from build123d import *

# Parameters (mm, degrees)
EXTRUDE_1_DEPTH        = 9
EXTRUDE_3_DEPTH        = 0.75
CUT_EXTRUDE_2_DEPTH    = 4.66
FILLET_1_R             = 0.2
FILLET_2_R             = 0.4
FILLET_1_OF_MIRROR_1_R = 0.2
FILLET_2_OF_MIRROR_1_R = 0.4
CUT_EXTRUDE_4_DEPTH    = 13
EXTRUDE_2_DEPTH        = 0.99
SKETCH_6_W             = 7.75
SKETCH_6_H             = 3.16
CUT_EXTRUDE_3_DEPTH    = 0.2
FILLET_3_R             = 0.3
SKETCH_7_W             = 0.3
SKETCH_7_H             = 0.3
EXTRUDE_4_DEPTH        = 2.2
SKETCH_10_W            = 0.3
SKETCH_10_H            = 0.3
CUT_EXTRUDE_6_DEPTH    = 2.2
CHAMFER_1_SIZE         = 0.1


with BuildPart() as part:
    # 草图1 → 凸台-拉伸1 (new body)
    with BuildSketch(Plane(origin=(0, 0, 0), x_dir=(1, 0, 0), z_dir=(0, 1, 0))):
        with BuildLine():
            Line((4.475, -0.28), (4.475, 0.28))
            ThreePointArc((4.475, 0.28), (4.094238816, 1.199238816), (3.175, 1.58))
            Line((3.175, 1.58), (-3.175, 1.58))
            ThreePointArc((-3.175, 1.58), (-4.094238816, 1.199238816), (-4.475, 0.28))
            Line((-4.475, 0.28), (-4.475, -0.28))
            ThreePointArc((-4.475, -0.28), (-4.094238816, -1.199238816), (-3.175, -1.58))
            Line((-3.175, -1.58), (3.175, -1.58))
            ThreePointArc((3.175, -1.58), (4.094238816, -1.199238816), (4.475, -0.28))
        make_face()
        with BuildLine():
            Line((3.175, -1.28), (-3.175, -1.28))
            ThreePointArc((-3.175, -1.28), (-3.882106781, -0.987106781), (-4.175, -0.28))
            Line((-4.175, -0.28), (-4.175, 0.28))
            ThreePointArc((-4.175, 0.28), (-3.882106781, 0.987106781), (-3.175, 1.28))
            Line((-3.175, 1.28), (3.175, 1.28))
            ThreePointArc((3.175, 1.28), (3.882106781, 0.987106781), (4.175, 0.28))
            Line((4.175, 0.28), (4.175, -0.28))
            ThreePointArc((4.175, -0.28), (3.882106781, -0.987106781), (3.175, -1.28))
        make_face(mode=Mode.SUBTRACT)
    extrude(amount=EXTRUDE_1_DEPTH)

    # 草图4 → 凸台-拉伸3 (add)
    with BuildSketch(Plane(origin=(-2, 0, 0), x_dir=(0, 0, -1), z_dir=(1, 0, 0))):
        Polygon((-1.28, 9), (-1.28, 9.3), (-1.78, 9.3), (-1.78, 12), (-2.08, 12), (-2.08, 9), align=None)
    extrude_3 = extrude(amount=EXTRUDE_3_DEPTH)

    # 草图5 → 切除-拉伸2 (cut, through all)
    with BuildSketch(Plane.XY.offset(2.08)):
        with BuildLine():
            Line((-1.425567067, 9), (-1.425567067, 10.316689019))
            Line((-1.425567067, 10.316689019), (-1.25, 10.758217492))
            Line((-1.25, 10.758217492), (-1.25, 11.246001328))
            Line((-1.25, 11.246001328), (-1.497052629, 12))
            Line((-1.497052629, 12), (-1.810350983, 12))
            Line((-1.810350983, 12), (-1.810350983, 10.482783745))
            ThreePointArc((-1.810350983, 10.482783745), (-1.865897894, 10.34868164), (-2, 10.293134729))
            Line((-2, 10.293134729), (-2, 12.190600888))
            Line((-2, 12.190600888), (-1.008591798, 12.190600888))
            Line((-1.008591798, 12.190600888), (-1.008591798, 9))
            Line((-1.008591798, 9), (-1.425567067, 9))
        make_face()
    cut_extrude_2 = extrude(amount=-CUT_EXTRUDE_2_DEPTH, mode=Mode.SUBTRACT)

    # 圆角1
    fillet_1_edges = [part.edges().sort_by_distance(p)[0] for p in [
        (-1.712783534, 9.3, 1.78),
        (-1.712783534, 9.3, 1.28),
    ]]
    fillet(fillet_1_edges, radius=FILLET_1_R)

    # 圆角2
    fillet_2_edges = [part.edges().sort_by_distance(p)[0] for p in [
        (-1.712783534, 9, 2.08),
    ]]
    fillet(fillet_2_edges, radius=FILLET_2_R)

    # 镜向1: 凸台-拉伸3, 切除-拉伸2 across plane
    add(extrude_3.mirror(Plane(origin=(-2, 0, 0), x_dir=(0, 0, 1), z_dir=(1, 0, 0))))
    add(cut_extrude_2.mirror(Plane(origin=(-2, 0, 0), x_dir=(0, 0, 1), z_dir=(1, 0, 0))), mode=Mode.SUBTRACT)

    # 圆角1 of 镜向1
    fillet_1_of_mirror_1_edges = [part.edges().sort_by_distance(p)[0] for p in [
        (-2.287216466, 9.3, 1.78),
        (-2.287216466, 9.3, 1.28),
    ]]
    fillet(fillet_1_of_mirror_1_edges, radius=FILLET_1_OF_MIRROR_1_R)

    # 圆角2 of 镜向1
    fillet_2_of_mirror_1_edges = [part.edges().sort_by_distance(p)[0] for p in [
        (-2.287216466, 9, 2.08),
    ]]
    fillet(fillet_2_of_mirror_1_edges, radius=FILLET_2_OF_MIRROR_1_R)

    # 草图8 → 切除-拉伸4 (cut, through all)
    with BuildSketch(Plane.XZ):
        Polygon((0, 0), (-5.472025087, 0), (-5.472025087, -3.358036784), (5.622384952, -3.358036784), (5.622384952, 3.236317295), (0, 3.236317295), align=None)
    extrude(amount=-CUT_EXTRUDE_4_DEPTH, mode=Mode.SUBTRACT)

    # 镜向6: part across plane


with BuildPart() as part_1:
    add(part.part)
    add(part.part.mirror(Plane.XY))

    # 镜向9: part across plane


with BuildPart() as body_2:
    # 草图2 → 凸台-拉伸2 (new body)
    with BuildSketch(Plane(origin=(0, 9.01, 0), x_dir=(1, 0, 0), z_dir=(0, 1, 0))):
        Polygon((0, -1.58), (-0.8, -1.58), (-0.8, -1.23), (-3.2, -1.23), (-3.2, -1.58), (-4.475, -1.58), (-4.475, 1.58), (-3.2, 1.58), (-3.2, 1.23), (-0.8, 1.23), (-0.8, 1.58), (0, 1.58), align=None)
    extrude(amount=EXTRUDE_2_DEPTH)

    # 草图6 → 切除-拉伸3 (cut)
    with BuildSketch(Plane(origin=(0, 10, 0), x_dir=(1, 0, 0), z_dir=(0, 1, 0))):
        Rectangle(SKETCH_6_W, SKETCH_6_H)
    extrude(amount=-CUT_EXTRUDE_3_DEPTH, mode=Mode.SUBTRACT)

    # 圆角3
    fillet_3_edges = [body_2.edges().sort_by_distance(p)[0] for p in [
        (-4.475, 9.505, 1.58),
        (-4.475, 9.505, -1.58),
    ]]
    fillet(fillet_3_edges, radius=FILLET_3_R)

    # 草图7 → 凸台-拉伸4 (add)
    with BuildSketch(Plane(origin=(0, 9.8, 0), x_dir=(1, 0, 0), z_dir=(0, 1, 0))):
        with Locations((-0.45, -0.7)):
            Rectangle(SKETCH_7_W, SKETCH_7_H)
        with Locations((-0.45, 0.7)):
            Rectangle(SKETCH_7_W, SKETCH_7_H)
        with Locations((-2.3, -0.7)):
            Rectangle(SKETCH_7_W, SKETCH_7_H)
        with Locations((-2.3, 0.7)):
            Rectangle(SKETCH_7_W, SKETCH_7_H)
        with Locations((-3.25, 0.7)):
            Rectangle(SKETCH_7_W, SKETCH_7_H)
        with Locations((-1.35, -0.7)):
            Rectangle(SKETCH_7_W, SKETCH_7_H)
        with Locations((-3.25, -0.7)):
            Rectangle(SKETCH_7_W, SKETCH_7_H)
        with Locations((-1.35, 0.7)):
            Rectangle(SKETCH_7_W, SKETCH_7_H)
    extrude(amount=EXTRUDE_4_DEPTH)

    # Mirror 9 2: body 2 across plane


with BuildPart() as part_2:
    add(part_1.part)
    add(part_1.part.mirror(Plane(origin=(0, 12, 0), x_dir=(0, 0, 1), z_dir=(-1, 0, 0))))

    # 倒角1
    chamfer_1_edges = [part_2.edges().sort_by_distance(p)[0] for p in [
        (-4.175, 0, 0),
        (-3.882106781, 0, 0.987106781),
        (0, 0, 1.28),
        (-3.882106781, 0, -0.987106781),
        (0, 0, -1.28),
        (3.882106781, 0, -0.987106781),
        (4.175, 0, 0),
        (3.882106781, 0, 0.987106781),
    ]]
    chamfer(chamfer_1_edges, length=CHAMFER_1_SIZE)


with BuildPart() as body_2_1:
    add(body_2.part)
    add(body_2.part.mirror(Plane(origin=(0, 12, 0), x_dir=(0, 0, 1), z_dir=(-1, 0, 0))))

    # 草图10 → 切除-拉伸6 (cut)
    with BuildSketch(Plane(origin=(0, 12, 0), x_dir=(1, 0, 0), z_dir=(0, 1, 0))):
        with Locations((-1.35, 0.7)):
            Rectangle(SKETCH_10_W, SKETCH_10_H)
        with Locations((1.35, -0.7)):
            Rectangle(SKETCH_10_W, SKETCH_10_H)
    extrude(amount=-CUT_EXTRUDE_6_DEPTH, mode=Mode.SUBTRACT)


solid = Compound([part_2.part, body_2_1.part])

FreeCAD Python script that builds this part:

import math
import FreeCAD as App
import Part
import Sketcher


def edges_at(feature, points):
    """Names of the edges that pass closest to the given points."""
    edges = feature.Shape.Edges
    near = lambda p: min(range(len(edges)), key=lambda i: edges[i].distToShape(Part.Vertex(*p))[0])
    return sorted({f"Edge{near(p) + 1}" for p in points})

doc = App.newDocument("Part")
body = doc.addObject("PartDesign::Body", "Body")

sketch1 = body.newObject("Sketcher::SketchObject", "Sketch")
sketch1.AttachmentSupport = (doc.getObject("XZ_Plane"), [""])
sketch1.MapMode = "FlatFace"
sketch1.addGeometry(Part.LineSegment(App.Vector(4.475, 0.28, 0), App.Vector(4.475, -0.28, 0)), False)
sketch1.addGeometry(Part.ArcOfCircle(Part.Circle(App.Vector(3.175, -0.28, 0), App.Vector(0, 0, 1), 1.3), math.radians(-90), math.radians(0)), False)
sketch1.addGeometry(Part.LineSegment(App.Vector(3.175, -1.58, 0), App.Vector(-3.175, -1.58, 0)), False)
sketch1.addGeometry(Part.ArcOfCircle(Part.Circle(App.Vector(-3.175, -0.28, 0), App.Vector(0, 0, 1), 1.3), math.radians(180), math.radians(270)), False)
sketch1.addGeometry(Part.LineSegment(App.Vector(-4.475, -0.28, 0), App.Vector(-4.475, 0.28, 0)), False)
sketch1.addGeometry(Part.ArcOfCircle(Part.Circle(App.Vector(-3.175, 0.28, 0), App.Vector(0, 0, 1), 1.3), math.radians(90), math.radians(180)), False)
sketch1.addGeometry(Part.LineSegment(App.Vector(-3.175, 1.58, 0), App.Vector(3.175, 1.58, 0)), False)
sketch1.addGeometry(Part.ArcOfCircle(Part.Circle(App.Vector(3.175, 0.28, 0), App.Vector(0, 0, 1), 1.3), math.radians(0), math.radians(90)), False)
sketch1.addGeometry(Part.ArcOfCircle(Part.Circle(App.Vector(3.175, 0.28, 0), App.Vector(0, 0, 1), 1), math.radians(0), math.radians(90)), False)
sketch1.addGeometry(Part.LineSegment(App.Vector(3.175, 1.28, 0), App.Vector(-3.175, 1.28, 0)), False)
sketch1.addGeometry(Part.ArcOfCircle(Part.Circle(App.Vector(-3.175, 0.28, 0), App.Vector(0, 0, 1), 1), math.radians(90), math.radians(180)), False)
sketch1.addGeometry(Part.LineSegment(App.Vector(-4.175, 0.28, 0), App.Vector(-4.175, -0.28, 0)), False)
sketch1.addGeometry(Part.ArcOfCircle(Part.Circle(App.Vector(-3.175, -0.28, 0), App.Vector(0, 0, 1), 1), math.radians(-180), math.radians(-90)), False)
sketch1.addGeometry(Part.LineSegment(App.Vector(-3.175, -1.28, 0), App.Vector(3.175, -1.28, 0)), False)
sketch1.addGeometry(Part.ArcOfCircle(Part.Circle(App.Vector(3.175, -0.28, 0), App.Vector(0, 0, 1), 1), math.radians(-90), math.radians(0)), False)
sketch1.addGeometry(Part.LineSegment(App.Vector(4.175, -0.28, 0), App.Vector(4.175, 0.28, 0)), False)
sketch1.addConstraint(Sketcher.Constraint("Tangent", 0, 2, 1, 2))
sketch1.addConstraint(Sketcher.Constraint("Tangent", 1, 1, 2, 1))
sketch1.addConstraint(Sketcher.Constraint("Tangent", 2, 2, 3, 2))
sketch1.addConstraint(Sketcher.Constraint("Tangent", 3, 1, 4, 1))
sketch1.addConstraint(Sketcher.Constraint("Tangent", 4, 2, 5, 2))
sketch1.addConstraint(Sketcher.Constraint("Tangent", 5, 1, 6, 1))
sketch1.addConstraint(Sketcher.Constraint("Tangent", 6, 2, 7, 2))
sketch1.addConstraint(Sketcher.Constraint("Tangent", 7, 1, 0, 1))
sketch1.addConstraint(Sketcher.Constraint("Tangent", 8, 2, 9, 1))
sketch1.addConstraint(Sketcher.Constraint("Tangent", 9, 2, 10, 1))
sketch1.addConstraint(Sketcher.Constraint("Tangent", 10, 2, 11, 1))
sketch1.addConstraint(Sketcher.Constraint("Tangent", 11, 2, 12, 1))
sketch1.addConstraint(Sketcher.Constraint("Tangent", 12, 2, 13, 1))
sketch1.addConstraint(Sketcher.Constraint("Tangent", 13, 2, 14, 1))
sketch1.addConstraint(Sketcher.Constraint("Tangent", 14, 2, 15, 1))
sketch1.addConstraint(Sketcher.Constraint("Tangent", 15, 2, 8, 1))
sketch1.addConstraint(Sketcher.Constraint("Vertical", 0))
sketch1.addConstraint(Sketcher.Constraint("Horizontal", 2))
sketch1.addConstraint(Sketcher.Constraint("Vertical", 4))
sketch1.addConstraint(Sketcher.Constraint("Horizontal", 6))
sketch1.addConstraint(Sketcher.Constraint("Horizontal", 9))
sketch1.addConstraint(Sketcher.Constraint("Vertical", 11))
sketch1.addConstraint(Sketcher.Constraint("Horizontal", 13))
sketch1.addConstraint(Sketcher.Constraint("Vertical", 15))
sketch1.addConstraint(Sketcher.Constraint("Coincident", 8, 3, 7, 3))
sketch1.addConstraint(Sketcher.Constraint("Coincident", 10, 3, 5, 3))
sketch1.addConstraint(Sketcher.Constraint("Coincident", 12, 3, 3, 3))
sketch1.addConstraint(Sketcher.Constraint("Equal", 1, 3))
sketch1.addConstraint(Sketcher.Constraint("Equal", 3, 5))
sketch1.addConstraint(Sketcher.Constraint("Equal", 5, 7))
sketch1.addConstraint(Sketcher.Constraint("Equal", 12, 14))
sketch1.addConstraint(Sketcher.Constraint("Symmetric", 1, 3, 5, 3, -1, 1))
sketch1.addConstraint(Sketcher.Constraint("Radius", 8, 1.0))
sketch1.addConstraint(Sketcher.Constraint("Radius", 1, 1.3))
sketch1.addConstraint(Sketcher.Constraint("DistanceX", 2, 2, 2, 1, 6.35))
sketch1.addConstraint(Sketcher.Constraint("DistanceY", 0, 2, 0, 1, 0.56))
pad1 = body.newObject("PartDesign::Pad", "Pad")
pad1.Profile = sketch1
pad1.Length = 9
pad1.Reversed = True

sketch2 = body.newObject("Sketcher::SketchObject", "Sketch001")
sketch2.AttachmentSupport = (doc.getObject("YZ_Plane"), [""])
sketch2.MapMode = "FlatFace"
sketch2.AttachmentOffset = App.Placement(App.Vector(0, 0, -2), App.Rotation())
sketch2.addGeometry(Part.LineSegment(App.Vector(9, 1.28, 0), App.Vector(9.3, 1.28, 0)), False)
sketch2.addGeometry(Part.LineSegment(App.Vector(9.3, 1.28, 0), App.Vector(9.3, 1.78, 0)), False)
sketch2.addGeometry(Part.LineSegment(App.Vector(9.3, 1.78, 0), App.Vector(12, 1.78, 0)), False)
sketch2.addGeometry(Part.LineSegment(App.Vector(12, 1.78, 0), App.Vector(12, 2.08, 0)), False)
sketch2.addGeometry(Part.LineSegment(App.Vector(12, 2.08, 0), App.Vector(9, 2.08, 0)), False)
sketch2.addGeometry(Part.LineSegment(App.Vector(9, 2.08, 0), App.Vector(9, 1.28, 0)), False)
sketch2.addConstraint(Sketcher.Constraint("Coincident", 0, 2, 1, 1))
sketch2.addConstraint(Sketcher.Constraint("Coincident", 1, 2, 2, 1))
sketch2.addConstraint(Sketcher.Constraint("Coincident", 2, 2, 3, 1))
sketch2.addConstraint(Sketcher.Constraint("Coincident", 3, 2, 4, 1))
sketch2.addConstraint(Sketcher.Constraint("Coincident", 4, 2, 5, 1))
sketch2.addConstraint(Sketcher.Constraint("Coincident", 5, 2, 0, 1))
sketch2.addConstraint(Sketcher.Constraint("Horizontal", 0))
sketch2.addConstraint(Sketcher.Constraint("Vertical", 1))
sketch2.addConstraint(Sketcher.Constraint("Horizontal", 2))
sketch2.addConstraint(Sketcher.Constraint("Vertical", 3))
sketch2.addConstraint(Sketcher.Constraint("Horizontal", 4))
sketch2.addConstraint(Sketcher.Constraint("Vertical", 5))
sketch2.addConstraint(Sketcher.Constraint("Equal", 0, 3))
sketch2.addConstraint(Sketcher.Constraint("DistanceX", 4, 2, 4, 1, 3.0))
sketch2.addConstraint(Sketcher.Constraint("DistanceX", 0, 1, 0, 2, 0.3))
sketch2.addConstraint(Sketcher.Constraint("DistanceY", 1, 1, 1, 2, 0.5))
sketch2.addConstraint(Sketcher.Constraint("DistanceX", -1, 1, 2, 2, 12.0))
sketch2.addConstraint(Sketcher.Constraint("DistanceY", -1, 1, 0, 2, 1.28))
pad2 = body.newObject("PartDesign::Pad", "Pad001")
pad2.Profile = sketch2
pad2.Length = 0.75

sketch3 = body.newObject("Sketcher::SketchObject", "Sketch002")
sketch3.AttachmentSupport = (doc.getObject("XY_Plane"), [""])
sketch3.MapMode = "FlatFace"
sketch3.AttachmentOffset = App.Placement(App.Vector(0, 0, 2.08), App.Rotation())
sketch3.addGeometry(Part.LineSegment(App.Vector(-1.425567, 10.316689, 0), App.Vector(-1.425567, 9, 0)), False)
sketch3.addGeometry(Part.LineSegment(App.Vector(-1.425567, 9, 0), App.Vector(-1.008592, 9, 0)), False)
sketch3.addGeometry(Part.LineSegment(App.Vector(-1.008592, 9, 0), App.Vector(-1.008592, 12.190601, 0)), False)
sketch3.addGeometry(Part.LineSegment(App.Vector(-1.008592, 12.190601, 0), App.Vector(-2, 12.190601, 0)), False)
sketch3.addGeometry(Part.LineSegment(App.Vector(-2, 12.190601, 0), App.Vector(-2, 10.293135, 0)), False)
sketch3.addGeometry(Part.ArcOfCircle(Part.Circle(App.Vector(-2, 10.482784, 0), App.Vector(0, 0, 1), 0.189649), math.radians(-90), math.radians(0)), False)
sketch3.addGeometry(Part.LineSegment(App.Vector(-1.810351, 10.482784, 0), App.Vector(-1.810351, 12, 0)), False)
sketch3.addGeometry(Part.LineSegment(App.Vector(-1.810351, 12, 0), App.Vector(-1.497053, 12, 0)), False)
sketch3.addGeometry(Part.LineSegment(App.Vector(-1.497053, 12, 0), App.Vector(-1.25, 11.246001, 0)), False)
sketch3.addGeometry(Part.LineSegment(App.Vector(-1.25, 11.246001, 0), App.Vector(-1.25, 10.758217, 0)), False)
sketch3.addGeometry(Part.LineSegment(App.Vector(-1.25, 10.758217, 0), App.Vector(-1.425567, 10.316689, 0)), False)
sketch3.addConstraint(Sketcher.Constraint("Coincident", 0, 2, 1, 1))
sketch3.addConstraint(Sketcher.Constraint("Coincident", 1, 2, 2, 1))
sketch3.addConstraint(Sketcher.Constraint("Coincident", 2, 2, 3, 1))
sketch3.addConstraint(Sketcher.Constraint("Coincident", 3, 2, 4, 1))
sketch3.addConstraint(Sketcher.Constraint("Coincident", 4, 2, 5, 1))
sketch3.addConstraint(Sketcher.Constraint("Tangent", 5, 2, 6, 1))
sketch3.addConstraint(Sketcher.Constraint("Coincident", 6, 2, 7, 1))
sketch3.addConstraint(Sketcher.Constraint("Coincident", 7, 2, 8, 1))
sketch3.addConstraint(Sketcher.Constraint("Coincident", 8, 2, 9, 1))
sketch3.addConstraint(Sketcher.Constraint("Coincident", 9, 2, 10, 1))
sketch3.addConstraint(Sketcher.Constraint("Coincident", 10, 2, 0, 1))
sketch3.addConstraint(Sketcher.Constraint("Vertical", 0))
sketch3.addConstraint(Sketcher.Constraint("Horizontal", 1))
sketch3.addConstraint(Sketcher.Constraint("Vertical", 2))
sketch3.addConstraint(Sketcher.Constraint("Horizontal", 3))
sketch3.addConstraint(Sketcher.Constraint("Vertical", 4))
sketch3.addConstraint(Sketcher.Constraint("Vertical", 6))
sketch3.addConstraint(Sketcher.Constraint("Horizontal", 7))
sketch3.addConstraint(Sketcher.Constraint("Vertical", 9))
sketch3.addConstraint(Sketcher.Constraint("Vertical", 5, 3, 3, 2))
sketch3.addConstraint(Sketcher.Constraint("DistanceX", 5, 3, -1, 1, 2.0))
sketch3.addConstraint(Sketcher.Constraint("DistanceY", -1, 1, 0, 2, 9.0))
sketch3.addConstraint(Sketcher.Constraint("DistanceY", -1, 1, 6, 2, 12.0))
sketch3.addConstraint(Sketcher.Constraint("DistanceX", 8, 2, -1, 1, 1.25))
sketch3.addConstraint(Sketcher.Constraint("Radius", 5, 0.189649))
sketch3.addConstraint(Sketcher.Constraint("DistanceX", 7, 1, 7, 2, 0.313298))
sketch3.addConstraint(Sketcher.Constraint("DistanceY", 2, 1, 2, 2, 3.190601))
sketch3.addConstraint(Sketcher.Constraint("DistanceY", -1, 1, 8, 2, 11.246001))
sketch3.addConstraint(Sketcher.Constraint("DistanceX", 3, 2, 3, 1, 0.991408))
sketch3.addConstraint(Sketcher.Constraint("DistanceY", 0, 2, 0, 1, 1.316689))
sketch3.addConstraint(Sketcher.Constraint("DistanceX", 1, 1, 1, 2, 0.416975))
sketch3.addConstraint(Sketcher.Constraint("DistanceY", 4, 2, 4, 1, 1.897466))
sketch3.addConstraint(Sketcher.Constraint("DistanceY", 9, 2, 9, 1, 0.487784))
pocket1 = body.newObject("PartDesign::Pocket", "Pocket")
pocket1.Profile = sketch3
pocket1.Type = "ThroughAll"
doc.recompute()

fillet = body.newObject("PartDesign::Fillet", "Fillet")
fillet.Base = (pocket1, edges_at(pocket1, [(-1.713, 9.3, 1.78), (-1.713, 9.3, 1.28)]))
fillet.Radius = 0.2
doc.recompute()

fillet2 = body.newObject("PartDesign::Fillet", "Fillet001")
fillet2.Base = (fillet, edges_at(fillet, [(-1.713, 9, 2.08)]))
fillet2.Radius = 0.4
doc.recompute()

datumplane = body.newObject("PartDesign::Plane", "DatumPlane")
datumplane.AttachmentSupport = (doc.getObject("YZ_Plane"), [""])
datumplane.MapMode = "FlatFace"
datumplane.AttachmentOffset = App.Placement(App.Vector(0, 0, -2), App.Rotation())
mirrored = body.newObject("PartDesign::Mirrored", "Mirrored")
mirrored.Originals = [pad2, pocket1]
mirrored.MirrorPlane = (datumplane, [""])
body.Tip = mirrored
doc.recompute()

fillet3 = body.newObject("PartDesign::Fillet", "Fillet002")
fillet3.Base = (mirrored, edges_at(mirrored, [(-2.287, 9.3, 1.78), (-2.287, 9.3, 1.28)]))
fillet3.Radius = 0.2
doc.recompute()

fillet4 = body.newObject("PartDesign::Fillet", "Fillet003")
fillet4.Base = (fillet3, edges_at(fillet3, [(-2.287, 9, 2.08)]))
fillet4.Radius = 0.4

sketch4 = body.newObject("Sketcher::SketchObject", "Sketch003")
sketch4.AttachmentSupport = (doc.getObject("XZ_Plane"), [""])
sketch4.MapMode = "FlatFace"
sketch4.addGeometry(Part.LineSegment(App.Vector(0, 0, 0), App.Vector(-5.472025, 0, 0)), False)
sketch4.addGeometry(Part.LineSegment(App.Vector(-5.472025, 0, 0), App.Vector(-5.472025, -3.358037, 0)), False)
sketch4.addGeometry(Part.LineSegment(App.Vector(-5.472025, -3.358037, 0), App.Vector(5.622385, -3.358037, 0)), False)
sketch4.addGeometry(Part.LineSegment(App.Vector(5.622385, -3.358037, 0), App.Vector(5.622385, 3.236317, 0)), False)
sketch4.addGeometry(Part.LineSegment(App.Vector(5.622385, 3.236317, 0), App.Vector(0, 3.236317, 0)), False)
sketch4.addGeometry(Part.LineSegment(App.Vector(0, 3.236317, 0), App.Vector(0, 0, 0)), False)
sketch4.addConstraint(Sketcher.Constraint("Coincident", 0, 2, 1, 1))
sketch4.addConstraint(Sketcher.Constraint("Coincident", 1, 2, 2, 1))
sketch4.addConstraint(Sketcher.Constraint("Coincident", 2, 2, 3, 1))
sketch4.addConstraint(Sketcher.Constraint("Coincident", 3, 2, 4, 1))
sketch4.addConstraint(Sketcher.Constraint("Coincident", 4, 2, 5, 1))
sketch4.addConstraint(Sketcher.Constraint("Coincident", 5, 2, 0, 1))
sketch4.addConstraint(Sketcher.Constraint("Horizontal", 0))
sketch4.addConstraint(Sketcher.Constraint("Vertical", 1))
sketch4.addConstraint(Sketcher.Constraint("Horizontal", 2))
sketch4.addConstraint(Sketcher.Constraint("Vertical", 3))
sketch4.addConstraint(Sketcher.Constraint("Horizontal", 4))
sketch4.addConstraint(Sketcher.Constraint("Vertical", 5))
sketch4.addConstraint(Sketcher.Constraint("Coincident", 5, 2, -1, 1))
sketch4.addConstraint(Sketcher.Constraint("DistanceX", 2, 1, 2, 2, 11.09441))
sketch4.addConstraint(Sketcher.Constraint("DistanceX", 0, 2, 0, 1, 5.472025))
sketch4.addConstraint(Sketcher.Constraint("DistanceY", 1, 2, 1, 1, 3.358037))
sketch4.addConstraint(Sketcher.Constraint("DistanceY", 3, 1, 3, 2, 6.594354))
pocket2 = body.newObject("PartDesign::Pocket", "Pocket001")
pocket2.Profile = sketch4
pocket2.Type = "ThroughAll"
body2 = doc.addObject("PartDesign::Body", "Body001")
doc.recompute()

body2.BaseFeature = body
doc.recompute()

mirroring = doc.addObject("Part::Mirroring", "Mirroring")
mirroring.Source = body
mirroring.Base = App.Vector(0, 0, 0)
mirroring.Normal = App.Vector(0, 0, 1)
body3 = doc.addObject("PartDesign::Body", "Body002")
body3.BaseFeature = mirroring
boolean = body2.newObject("PartDesign::Boolean", "Boolean")
boolean.Type = "Fuse"
boolean.addObjects([body3])
doc.recompute()
body4 = doc.addObject("PartDesign::Body", "Body003")

sketch5 = body4.newObject("Sketcher::SketchObject", "Sketch004")
sketch5.AttachmentSupport = (doc.getObject("XZ_Plane003"), [""])
sketch5.MapMode = "FlatFace"
sketch5.AttachmentOffset = App.Placement(App.Vector(0, 0, -9.01), App.Rotation())
sketch5.addGeometry(Part.LineSegment(App.Vector(-0.8, 1.58, 0), App.Vector(0, 1.58, 0)), False)
sketch5.addGeometry(Part.LineSegment(App.Vector(0, 1.58, 0), App.Vector(0, -1.58, 0)), False)
sketch5.addGeometry(Part.LineSegment(App.Vector(0, -1.58, 0), App.Vector(-0.8, -1.58, 0)), False)
sketch5.addGeometry(Part.LineSegment(App.Vector(-0.8, -1.58, 0), App.Vector(-0.8, -1.23, 0)), False)
sketch5.addGeometry(Part.LineSegment(App.Vector(-0.8, -1.23, 0), App.Vector(-3.2, -1.23, 0)), False)
sketch5.addGeometry(Part.LineSegment(App.Vector(-3.2, -1.23, 0), App.Vector(-3.2, -1.58, 0)), False)
sketch5.addGeometry(Part.LineSegment(App.Vector(-3.2, -1.58, 0), App.Vector(-4.475, -1.58, 0)), False)
sketch5.addGeometry(Part.LineSegment(App.Vector(-4.475, -1.58, 0), App.Vector(-4.475, 1.58, 0)), False)
sketch5.addGeometry(Part.LineSegment(App.Vector(-4.475, 1.58, 0), App.Vector(-3.2, 1.58, 0)), False)
sketch5.addGeometry(Part.LineSegment(App.Vector(-3.2, 1.58, 0), App.Vector(-3.2, 1.23, 0)), False)
sketch5.addGeometry(Part.LineSegment(App.Vector(-3.2, 1.23, 0), App.Vector(-0.8, 1.23, 0)), False)
sketch5.addGeometry(Part.LineSegment(App.Vector(-0.8, 1.23, 0), App.Vector(-0.8, 1.58, 0)), False)
sketch5.addConstraint(Sketcher.Constraint("Coincident", 0, 2, 1, 1))
sketch5.addConstraint(Sketcher.Constraint("Coincident", 1, 2, 2, 1))
sketch5.addConstraint(Sketcher.Constraint("Coincident", 2, 2, 3, 1))
sketch5.addConstraint(Sketcher.Constraint("Coincident", 3, 2, 4, 1))
sketch5.addConstraint(Sketcher.Constraint("Coincident", 4, 2, 5, 1))
sketch5.addConstraint(Sketcher.Constraint("Coincident", 5, 2, 6, 1))
sketch5.addConstraint(Sketcher.Constraint("Coincident", 6, 2, 7, 1))
sketch5.addConstraint(Sketcher.Constraint("Coincident", 7, 2, 8, 1))
sketch5.addConstraint(Sketcher.Constraint("Coincident", 8, 2, 9, 1))
sketch5.addConstraint(Sketcher.Constraint("Coincident", 9, 2, 10, 1))
sketch5.addConstraint(Sketcher.Constraint("Coincident", 10, 2, 11, 1))
sketch5.addConstraint(Sketcher.Constraint("Coincident", 11, 2, 0, 1))
sketch5.addConstraint(Sketcher.Constraint("Horizontal", 0))
sketch5.addConstraint(Sketcher.Constraint("Vertical", 1))
sketch5.addConstraint(Sketcher.Constraint("Horizontal", 2))
sketch5.addConstraint(Sketcher.Constraint("Vertical", 3))
sketch5.addConstraint(Sketcher.Constraint("Horizontal", 4))
sketch5.addConstraint(Sketcher.Constraint("Vertical", 5))
sketch5.addConstraint(Sketcher.Constraint("Horizontal", 6))
sketch5.addConstraint(Sketcher.Constraint("Vertical", 7))
sketch5.addConstraint(Sketcher.Constraint("Horizontal", 8))
sketch5.addConstraint(Sketcher.Constraint("Vertical", 9))
sketch5.addConstraint(Sketcher.Constraint("Horizontal", 10))
sketch5.addConstraint(Sketcher.Constraint("Vertical", 11))
sketch5.addConstraint(Sketcher.Constraint("Symmetric", 0, 2, 1, 2, -1, 1))
sketch5.addConstraint(Sketcher.Constraint("Symmetric", 5, 2, 8, 2, -1))
sketch5.addConstraint(Sketcher.Constraint("Symmetric", 3, 2, 10, 2, -1))
sketch5.addConstraint(Sketcher.Constraint("Horizontal", 2, 2, 5, 2))
sketch5.addConstraint(Sketcher.Constraint("DistanceX", 0, 1, 0, 2, 0.8))
sketch5.addConstraint(Sketcher.Constraint("DistanceX", 4, 2, 4, 1, 2.4))
sketch5.addConstraint(Sketcher.Constraint("DistanceY", 1, 2, 1, 1, 3.16))
sketch5.addConstraint(Sketcher.Constraint("DistanceY", 3, 1, 3, 2, 0.35))
sketch5.addConstraint(Sketcher.Constraint("DistanceX", 6, 2, 6, 1, 1.275))
pad3 = body4.newObject("PartDesign::Pad", "Pad002")
pad3.Profile = sketch5
pad3.Length = 0.99
pad3.Reversed = True

sketch6 = body4.newObject("Sketcher::SketchObject", "Sketch005")
sketch6.AttachmentSupport = (doc.getObject("XZ_Plane003"), [""])
sketch6.MapMode = "FlatFace"
sketch6.AttachmentOffset = App.Placement(App.Vector(0, 0, -10), App.Rotation())
sketch6.addGeometry(Part.LineSegment(App.Vector(-3.875, -1.58, 0), App.Vector(-3.875, 1.58, 0)), False)
sketch6.addGeometry(Part.LineSegment(App.Vector(-3.875, 1.58, 0), App.Vector(3.875, 1.58, 0)), False)
sketch6.addGeometry(Part.LineSegment(App.Vector(3.875, 1.58, 0), App.Vector(3.875, -1.58, 0)), False)
sketch6.addGeometry(Part.LineSegment(App.Vector(3.875, -1.58, 0), App.Vector(-3.875, -1.58, 0)), False)
sketch6.addConstraint(Sketcher.Constraint("Coincident", 0, 2, 1, 1))
sketch6.addConstraint(Sketcher.Constraint("Coincident", 1, 2, 2, 1))
sketch6.addConstraint(Sketcher.Constraint("Coincident", 2, 2, 3, 1))
sketch6.addConstraint(Sketcher.Constraint("Coincident", 3, 2, 0, 1))
sketch6.addConstraint(Sketcher.Constraint("Vertical", 0))
sketch6.addConstraint(Sketcher.Constraint("Horizontal", 1))
sketch6.addConstraint(Sketcher.Constraint("Vertical", 2))
sketch6.addConstraint(Sketcher.Constraint("Horizontal", 3))
sketch6.addConstraint(Sketcher.Constraint("Symmetric", 0, 2, 2, 2, -1, 1))
sketch6.addConstraint(Sketcher.Constraint("DistanceX", 1, 1, 1, 2, 7.75))
sketch6.addConstraint(Sketcher.Constraint("DistanceY", 0, 1, 0, 2, 3.16))
pocket3 = body4.newObject("PartDesign::Pocket", "Pocket002")
pocket3.Profile = sketch6
pocket3.Length = 0.2
pocket3.Reversed = True
doc.recompute()

fillet5 = body4.newObject("PartDesign::Fillet", "Fillet004")
fillet5.Base = (pocket3, edges_at(pocket3, [(-4.475, 9.505, 1.58), (-4.475, 9.505, -1.58)]))
fillet5.Radius = 0.3

sketch7 = body4.newObject("Sketcher::SketchObject", "Sketch006")
sketch7.AttachmentSupport = (doc.getObject("XZ_Plane003"), [""])
sketch7.MapMode = "FlatFace"
sketch7.AttachmentOffset = App.Placement(App.Vector(0, 0, -9.8), App.Rotation())
sketch7.addGeometry(Part.LineSegment(App.Vector(-0.6, 0.55, 0), App.Vector(-0.6, 0.85, 0)), False)
sketch7.addGeometry(Part.LineSegment(App.Vector(-0.6, 0.85, 0), App.Vector(-0.3, 0.85, 0)), False)
sketch7.addGeometry(Part.LineSegment(App.Vector(-0.3, 0.85, 0), App.Vector(-0.3, 0.55, 0)), False)
sketch7.addGeometry(Part.LineSegment(App.Vector(-0.3, 0.55, 0), App.Vector(-0.6, 0.55, 0)), False)
sketch7.addGeometry(Part.LineSegment(App.Vector(-0.6, -0.85, 0), App.Vector(-0.6, -0.55, 0)), False)
sketch7.addGeometry(Part.LineSegment(App.Vector(-0.6, -0.55, 0), App.Vector(-0.3, -0.55, 0)), False)
sketch7.addGeometry(Part.LineSegment(App.Vector(-0.3, -0.55, 0), App.Vector(-0.3, -0.85, 0)), False)
sketch7.addGeometry(Part.LineSegment(App.Vector(-0.3, -0.85, 0), App.Vector(-0.6, -0.85, 0)), False)
sketch7.addGeometry(Part.LineSegment(App.Vector(-2.45, 0.55, 0), App.Vector(-2.45, 0.85, 0)), False)
sketch7.addGeometry(Part.LineSegment(App.Vector(-2.45, 0.85, 0), App.Vector(-2.15, 0.85, 0)), False)
sketch7.addGeometry(Part.LineSegment(App.Vector(-2.15, 0.85, 0), App.Vector(-2.15, 0.55, 0)), False)
sketch7.addGeometry(Part.LineSegment(App.Vector(-2.15, 0.55, 0), App.Vector(-2.45, 0.55, 0)), False)
sketch7.addGeometry(Part.LineSegment(App.Vector(-2.45, -0.85, 0), App.Vector(-2.45, -0.55, 0)), False)
sketch7.addGeometry(Part.LineSegment(App.Vector(-2.45, -0.55, 0), App.Vector(-2.15, -0.55, 0)), False)
sketch7.addGeometry(Part.LineSegment(App.Vector(-2.15, -0.55, 0), App.Vector(-2.15, -0.85, 0)), False)
sketch7.addGeometry(Part.LineSegment(App.Vector(-2.15, -0.85, 0), App.Vector(-2.45, -0.85, 0)), False)
sketch7.addGeometry(Part.LineSegment(App.Vector(-3.4, -0.85, 0), App.Vector(-3.4, -0.55, 0)), False)
sketch7.addGeometry(Part.LineSegment(App.Vector(-3.4, -0.55, 0), App.Vector(-3.1, -0.55, 0)), False)
sketch7.addGeometry(Part.LineSegment(App.Vector(-3.1, -0.55, 0), App.Vector(-3.1, -0.85, 0)), False)
sketch7.addGeometry(Part.LineSegment(App.Vector(-3.1, -0.85, 0), App.Vector(-3.4, -0.85, 0)), False)
sketch7.addGeometry(Part.LineSegment(App.Vector(-1.5, 0.55, 0), App.Vector(-1.5, 0.85, 0)), False)
sketch7.addGeometry(Part.LineSegment(App.Vector(-1.5, 0.85, 0), App.Vector(-1.2, 0.85, 0)), False)
sketch7.addGeometry(Part.LineSegment(App.Vector(-1.2, 0.85, 0), App.Vector(-1.2, 0.55, 0)), False)
sketch7.addGeometry(Part.LineSegment(App.Vector(-1.2, 0.55, 0), App.Vector(-1.5, 0.55, 0)), False)
sketch7.addGeometry(Part.LineSegment(App.Vector(-3.4, 0.55, 0), App.Vector(-3.4, 0.85, 0)), False)
sketch7.addGeometry(Part.LineSegment(App.Vector(-3.4, 0.85, 0), App.Vector(-3.1, 0.85, 0)), False)
sketch7.addGeometry(Part.LineSegment(App.Vector(-3.1, 0.85, 0), App.Vector(-3.1, 0.55, 0)), False)
sketch7.addGeometry(Part.LineSegment(App.Vector(-3.1, 0.55, 0), App.Vector(-3.4, 0.55, 0)), False)
sketch7.addGeometry(Part.LineSegment(App.Vector(-1.5, -0.85, 0), App.Vector(-1.5, -0.55, 0)), False)
sketch7.addGeometry(Part.LineSegment(App.Vector(-1.5, -0.55, 0), App.Vector(-1.2, -0.55, 0)), False)
sketch7.addGeometry(Part.LineSegment(App.Vector(-1.2, -0.55, 0), App.Vector(-1.2, -0.85, 0)), False)
sketch7.addGeometry(Part.LineSegment(App.Vector(-1.2, -0.85, 0), App.Vector(-1.5, -0.85, 0)), False)
sketch7.addConstraint(Sketcher.Constraint("Coincident", 0, 2, 1, 1))
sketch7.addConstraint(Sketcher.Constraint("Coincident", 1, 2, 2, 1))
sketch7.addConstraint(Sketcher.Constraint("Coincident", 2, 2, 3, 1))
sketch7.addConstraint(Sketcher.Constraint("Coincident", 3, 2, 0, 1))
sketch7.addConstraint(Sketcher.Constraint("Coincident", 4, 2, 5, 1))
sketch7.addConstraint(Sketcher.Constraint("Coincident", 5, 2, 6, 1))
sketch7.addConstraint(Sketcher.Constraint("Coincident", 6, 2, 7, 1))
sketch7.addConstraint(Sketcher.Constraint("Coincident", 7, 2, 4, 1))
sketch7.addConstraint(Sketcher.Constraint("Coincident", 8, 2, 9, 1))
sketch7.addConstraint(Sketcher.Constraint("Coincident", 9, 2, 10, 1))
sketch7.addConstraint(Sketcher.Constraint("Coincident", 10, 2, 11, 1))
sketch7.addConstraint(Sketcher.Constraint("Coincident", 11, 2, 8, 1))
sketch7.addConstraint(Sketcher.Constraint("Coincident", 12, 2, 13, 1))
sketch7.addConstraint(Sketcher.Constraint("Coincident", 13, 2, 14, 1))
sketch7.addConstraint(Sketcher.Constraint("Coincident", 14, 2, 15, 1))
sketch7.addConstraint(Sketcher.Constraint("Coincident", 15, 2, 12, 1))
sketch7.addConstraint(Sketcher.Constraint("Coincident", 16, 2, 17, 1))
sketch7.addConstraint(Sketcher.Constraint("Coincident", 17, 2, 18, 1))
sketch7.addConstraint(Sketcher.Constraint("Coincident", 18, 2, 19, 1))
sketch7.addConstraint(Sketcher.Constraint("Coincident", 19, 2, 16, 1))
sketch7.addConstraint(Sketcher.Constraint("Coincident", 20, 2, 21, 1))
sketch7.addConstraint(Sketcher.Constraint("Coincident", 21, 2, 22, 1))
sketch7.addConstraint(Sketcher.Constraint("Coincident", 22, 2, 23, 1))
sketch7.addConstraint(Sketcher.Constraint("Coincident", 23, 2, 20, 1))
sketch7.addConstraint(Sketcher.Constraint("Coincident", 24, 2, 25, 1))
sketch7.addConstraint(Sketcher.Constraint("Coincident", 25, 2, 26, 1))
sketch7.addConstraint(Sketcher.Constraint("Coincident", 26, 2, 27, 1))
sketch7.addConstraint(Sketcher.Constraint("Coincident", 27, 2, 24, 1))
sketch7.addConstraint(Sketcher.Constraint("Coincident", 28, 2, 29, 1))
sketch7.addConstraint(Sketcher.Constraint("Coincident", 29, 2, 30, 1))
sketch7.addConstraint(Sketcher.Constraint("Coincident", 30, 2, 31, 1))
sketch7.addConstraint(Sketcher.Constraint("Coincident", 31, 2, 28, 1))
sketch7.addConstraint(Sketcher.Constraint("Vertical", 0))
sketch7.addConstraint(Sketcher.Constraint("Horizontal", 1))
sketch7.addConstraint(Sketcher.Constraint("Vertical", 2))
sketch7.addConstraint(Sketcher.Constraint("Horizontal", 3))
sketch7.addConstraint(Sketcher.Constraint("Vertical", 4))
sketch7.addConstraint(Sketcher.Constraint("Horizontal", 5))
sketch7.addConstraint(Sketcher.Constraint("Vertical", 6))
sketch7.addConstraint(Sketcher.Constraint("Horizontal", 7))
sketch7.addConstraint(Sketcher.Constraint("Vertical", 8))
sketch7.addConstraint(Sketcher.Constraint("Horizontal", 9))
sketch7.addConstraint(Sketcher.Constraint("Vertical", 10))
sketch7.addConstraint(Sketcher.Constraint("Horizontal", 11))
sketch7.addConstraint(Sketcher.Constraint("Vertical", 12))
sketch7.addConstraint(Sketcher.Constraint("Horizontal", 13))
sketch7.addConstraint(Sketcher.Constraint("Vertical", 14))
sketch7.addConstraint(Sketcher.Constraint("Horizontal", 15))
sketch7.addConstraint(Sketcher.Constraint("Vertical", 16))
sketch7.addConstraint(Sketcher.Constraint("Horizontal", 17))
sketch7.addConstraint(Sketcher.Constraint("Vertical", 18))
sketch7.addConstraint(Sketcher.Constraint("Horizontal", 19))
sketch7.addConstraint(Sketcher.Constraint("Vertical", 20))
sketch7.addConstraint(Sketcher.Constraint("Horizontal", 21))
sketch7.addConstraint(Sketcher.Constraint("Vertical", 22))
sketch7.addConstraint(Sketcher.Constraint("Horizontal", 23))
sketch7.addConstraint(Sketcher.Constraint("Vertical", 24))
sketch7.addConstraint(Sketcher.Constraint("Horizontal", 25))
sketch7.addConstraint(Sketcher.Constraint("Vertical", 26))
sketch7.addConstraint(Sketcher.Constraint("Horizontal", 27))
sketch7.addConstraint(Sketcher.Constraint("Vertical", 28))
sketch7.addConstraint(Sketcher.Constraint("Horizontal", 29))
sketch7.addConstraint(Sketcher.Constraint("Vertical", 30))
sketch7.addConstraint(Sketcher.Constraint("Horizontal", 31))
sketch7.addConstraint(Sketcher.Constraint("Symmetric", 3, 2, 4, 2, -1))
sketch7.addConstraint(Sketcher.Constraint("Symmetric", 1, 2, 6, 2, -1))
sketch7.addConstraint(Sketcher.Constraint("Symmetric", 11, 2, 12, 2, -1))
sketch7.addConstraint(Sketcher.Constraint("Symmetric", 9, 2, 14, 2, -1))
sketch7.addConstraint(Sketcher.Constraint("Symmetric", 19, 2, 24, 2, -1))
sketch7.addConstraint(Sketcher.Constraint("Symmetric", 17, 2, 26, 2, -1))
sketch7.addConstraint(Sketcher.Constraint("Symmetric", 23, 2, 28, 2, -1))
sketch7.addConstraint(Sketcher.Constraint("Symmetric", 21, 2, 30, 2, -1))
sketch7.addConstraint(Sketcher.Constraint("Horizontal", 1, 2, 8, 2))
sketch7.addConstraint(Sketcher.Constraint("Horizontal", 3, 2, 10, 2))
sketch7.addConstraint(Sketcher.Constraint("Horizontal", 13, 2, 16, 2))
sketch7.addConstraint(Sketcher.Constraint("Horizontal", 15, 2, 18, 2))
sketch7.addConstraint(Sketcher.Constraint("Horizontal", 9, 2, 20, 2))
sketch7.addConstraint(Sketcher.Constraint("Horizontal", 11, 2, 22, 2))
sketch7.addConstraint(Sketcher.Constraint("Equal", 7, 9))
sketch7.addConstraint(Sketcher.Constraint("Equal", 15, 17))
sketch7.addConstraint(Sketcher.Constraint("Equal", 19, 21))
sketch7.addConstraint(Sketcher.Constraint("Equal", 31, 0))
sketch7.addConstraint(Sketcher.Constraint("DistanceX", 1, 1, 1, 2, 0.3))
sketch7.addConstraint(Sketcher.Constraint("DistanceX", 0, 2, -1, 1, 0.6))
sketch7.addConstraint(Sketcher.Constraint("DistanceX", 16, 2, -1, 1, 3.4))
sketch7.addConstraint(Sketcher.Constraint("DistanceX", 20, 2, -1, 1, 1.5))
sketch7.addConstraint(Sketcher.Constraint("DistanceY", 4, 2, 3, 2, 1.1))
sketch7.addConstraint(Sketcher.Constraint("DistanceX", 8, 2, -1, 1, 2.45))
pad4 = body4.newObject("PartDesign::Pad", "Pad003")
pad4.Profile = sketch7
pad4.Length = 2.2
pad4.Reversed = True
body5 = doc.addObject("PartDesign::Body", "Body004")
doc.recompute()

body5.BaseFeature = body2
doc.recompute()

mirroring2 = doc.addObject("Part::Mirroring", "Mirroring001")
mirroring2.Source = body2
mirroring2.Base = App.Vector(0, 12, 0)
mirroring2.Normal = App.Vector(-1, 0, 0)
body6 = doc.addObject("PartDesign::Body", "Body005")
body6.BaseFeature = mirroring2
boolean2 = body5.newObject("PartDesign::Boolean", "Boolean001")
boolean2.Type = "Fuse"
boolean2.addObjects([body6])
doc.recompute()

chamfer = body5.newObject("PartDesign::Chamfer", "Chamfer")
chamfer.Base = (boolean2, edges_at(boolean2, [
    (-4.175, 0, 0),
    (-3.882, 0, 0.987),
    (0, 0, 1.28),
    (-3.882, 0, -0.987),
    (0, 0, -1.28),
    (3.882, 0, -0.987),
    (4.175, 0, 0),
    (3.882, 0, 0.987),
]))
chamfer.Size = 0.1
body7 = doc.addObject("PartDesign::Body", "Body006")
doc.recompute()

body7.BaseFeature = body4
doc.recompute()

mirroring3 = doc.addObject("Part::Mirroring", "Mirroring002")
mirroring3.Source = body4
mirroring3.Base = App.Vector(0, 12, 0)
mirroring3.Normal = App.Vector(-1, 0, 0)
body8 = doc.addObject("PartDesign::Body", "Body007")
body8.BaseFeature = mirroring3
boolean3 = body7.newObject("PartDesign::Boolean", "Boolean002")
boolean3.Type = "Fuse"
boolean3.addObjects([body8])
doc.recompute()

sketch8 = body7.newObject("Sketcher::SketchObject", "Sketch007")
sketch8.AttachmentSupport = (doc.getObject("XZ_Plane006"), [""])
sketch8.MapMode = "FlatFace"
sketch8.AttachmentOffset = App.Placement(App.Vector(0, 0, -12), App.Rotation())
sketch8.addGeometry(Part.LineSegment(App.Vector(-1.5, -0.85, 0), App.Vector(-1.5, -0.55, 0)), False)
sketch8.addGeometry(Part.LineSegment(App.Vector(-1.5, -0.55, 0), App.Vector(-1.2, -0.55, 0)), False)
sketch8.addGeometry(Part.LineSegment(App.Vector(-1.2, -0.55, 0), App.Vector(-1.2, -0.85, 0)), False)
sketch8.addGeometry(Part.LineSegment(App.Vector(-1.2, -0.85, 0), App.Vector(-1.5, -0.85, 0)), False)
sketch8.addGeometry(Part.LineSegment(App.Vector(1.2, 0.55, 0), App.Vector(1.2, 0.85, 0)), False)
sketch8.addGeometry(Part.LineSegment(App.Vector(1.2, 0.85, 0), App.Vector(1.5, 0.85, 0)), False)
sketch8.addGeometry(Part.LineSegment(App.Vector(1.5, 0.85, 0), App.Vector(1.5, 0.55, 0)), False)
sketch8.addGeometry(Part.LineSegment(App.Vector(1.5, 0.55, 0), App.Vector(1.2, 0.55, 0)), False)
sketch8.addConstraint(Sketcher.Constraint("Coincident", 0, 2, 1, 1))
sketch8.addConstraint(Sketcher.Constraint("Coincident", 1, 2, 2, 1))
sketch8.addConstraint(Sketcher.Constraint("Coincident", 2, 2, 3, 1))
sketch8.addConstraint(Sketcher.Constraint("Coincident", 3, 2, 0, 1))
sketch8.addConstraint(Sketcher.Constraint("Coincident", 4, 2, 5, 1))
sketch8.addConstraint(Sketcher.Constraint("Coincident", 5, 2, 6, 1))
sketch8.addConstraint(Sketcher.Constraint("Coincident", 6, 2, 7, 1))
sketch8.addConstraint(Sketcher.Constraint("Coincident", 7, 2, 4, 1))
sketch8.addConstraint(Sketcher.Constraint("Vertical", 0))
sketch8.addConstraint(Sketcher.Constraint("Horizontal", 1))
sketch8.addConstraint(Sketcher.Constraint("Vertical", 2))
sketch8.addConstraint(Sketcher.Constraint("Horizontal", 3))
sketch8.addConstraint(Sketcher.Constraint("Vertical", 4))
sketch8.addConstraint(Sketcher.Constraint("Horizontal", 5))
sketch8.addConstraint(Sketcher.Constraint("Vertical", 6))
sketch8.addConstraint(Sketcher.Constraint("Horizontal", 7))
sketch8.addConstraint(Sketcher.Constraint("Symmetric", 2, 2, 4, 2, -1, 1))
sketch8.addConstraint(Sketcher.Constraint("Symmetric", 0, 2, 6, 2, -1, 1))
sketch8.addConstraint(Sketcher.Constraint("Equal", 7, 0))
sketch8.addConstraint(Sketcher.Constraint("DistanceX", 1, 1, 1, 2, 0.3))
sketch8.addConstraint(Sketcher.Constraint("DistanceX", 0, 2, 5, 2, 3.0))
sketch8.addConstraint(Sketcher.Constraint("DistanceY", 1, 2, 4, 2, 1.4))
pocket4 = body7.newObject("PartDesign::Pocket", "Pocket003")
pocket4.Profile = sketch8
pocket4.Length = 2.2
pocket4.Reversed = True
mirroring.Visibility = False
mirroring2.Visibility = False
mirroring3.Visibility = False

doc.recompute()
